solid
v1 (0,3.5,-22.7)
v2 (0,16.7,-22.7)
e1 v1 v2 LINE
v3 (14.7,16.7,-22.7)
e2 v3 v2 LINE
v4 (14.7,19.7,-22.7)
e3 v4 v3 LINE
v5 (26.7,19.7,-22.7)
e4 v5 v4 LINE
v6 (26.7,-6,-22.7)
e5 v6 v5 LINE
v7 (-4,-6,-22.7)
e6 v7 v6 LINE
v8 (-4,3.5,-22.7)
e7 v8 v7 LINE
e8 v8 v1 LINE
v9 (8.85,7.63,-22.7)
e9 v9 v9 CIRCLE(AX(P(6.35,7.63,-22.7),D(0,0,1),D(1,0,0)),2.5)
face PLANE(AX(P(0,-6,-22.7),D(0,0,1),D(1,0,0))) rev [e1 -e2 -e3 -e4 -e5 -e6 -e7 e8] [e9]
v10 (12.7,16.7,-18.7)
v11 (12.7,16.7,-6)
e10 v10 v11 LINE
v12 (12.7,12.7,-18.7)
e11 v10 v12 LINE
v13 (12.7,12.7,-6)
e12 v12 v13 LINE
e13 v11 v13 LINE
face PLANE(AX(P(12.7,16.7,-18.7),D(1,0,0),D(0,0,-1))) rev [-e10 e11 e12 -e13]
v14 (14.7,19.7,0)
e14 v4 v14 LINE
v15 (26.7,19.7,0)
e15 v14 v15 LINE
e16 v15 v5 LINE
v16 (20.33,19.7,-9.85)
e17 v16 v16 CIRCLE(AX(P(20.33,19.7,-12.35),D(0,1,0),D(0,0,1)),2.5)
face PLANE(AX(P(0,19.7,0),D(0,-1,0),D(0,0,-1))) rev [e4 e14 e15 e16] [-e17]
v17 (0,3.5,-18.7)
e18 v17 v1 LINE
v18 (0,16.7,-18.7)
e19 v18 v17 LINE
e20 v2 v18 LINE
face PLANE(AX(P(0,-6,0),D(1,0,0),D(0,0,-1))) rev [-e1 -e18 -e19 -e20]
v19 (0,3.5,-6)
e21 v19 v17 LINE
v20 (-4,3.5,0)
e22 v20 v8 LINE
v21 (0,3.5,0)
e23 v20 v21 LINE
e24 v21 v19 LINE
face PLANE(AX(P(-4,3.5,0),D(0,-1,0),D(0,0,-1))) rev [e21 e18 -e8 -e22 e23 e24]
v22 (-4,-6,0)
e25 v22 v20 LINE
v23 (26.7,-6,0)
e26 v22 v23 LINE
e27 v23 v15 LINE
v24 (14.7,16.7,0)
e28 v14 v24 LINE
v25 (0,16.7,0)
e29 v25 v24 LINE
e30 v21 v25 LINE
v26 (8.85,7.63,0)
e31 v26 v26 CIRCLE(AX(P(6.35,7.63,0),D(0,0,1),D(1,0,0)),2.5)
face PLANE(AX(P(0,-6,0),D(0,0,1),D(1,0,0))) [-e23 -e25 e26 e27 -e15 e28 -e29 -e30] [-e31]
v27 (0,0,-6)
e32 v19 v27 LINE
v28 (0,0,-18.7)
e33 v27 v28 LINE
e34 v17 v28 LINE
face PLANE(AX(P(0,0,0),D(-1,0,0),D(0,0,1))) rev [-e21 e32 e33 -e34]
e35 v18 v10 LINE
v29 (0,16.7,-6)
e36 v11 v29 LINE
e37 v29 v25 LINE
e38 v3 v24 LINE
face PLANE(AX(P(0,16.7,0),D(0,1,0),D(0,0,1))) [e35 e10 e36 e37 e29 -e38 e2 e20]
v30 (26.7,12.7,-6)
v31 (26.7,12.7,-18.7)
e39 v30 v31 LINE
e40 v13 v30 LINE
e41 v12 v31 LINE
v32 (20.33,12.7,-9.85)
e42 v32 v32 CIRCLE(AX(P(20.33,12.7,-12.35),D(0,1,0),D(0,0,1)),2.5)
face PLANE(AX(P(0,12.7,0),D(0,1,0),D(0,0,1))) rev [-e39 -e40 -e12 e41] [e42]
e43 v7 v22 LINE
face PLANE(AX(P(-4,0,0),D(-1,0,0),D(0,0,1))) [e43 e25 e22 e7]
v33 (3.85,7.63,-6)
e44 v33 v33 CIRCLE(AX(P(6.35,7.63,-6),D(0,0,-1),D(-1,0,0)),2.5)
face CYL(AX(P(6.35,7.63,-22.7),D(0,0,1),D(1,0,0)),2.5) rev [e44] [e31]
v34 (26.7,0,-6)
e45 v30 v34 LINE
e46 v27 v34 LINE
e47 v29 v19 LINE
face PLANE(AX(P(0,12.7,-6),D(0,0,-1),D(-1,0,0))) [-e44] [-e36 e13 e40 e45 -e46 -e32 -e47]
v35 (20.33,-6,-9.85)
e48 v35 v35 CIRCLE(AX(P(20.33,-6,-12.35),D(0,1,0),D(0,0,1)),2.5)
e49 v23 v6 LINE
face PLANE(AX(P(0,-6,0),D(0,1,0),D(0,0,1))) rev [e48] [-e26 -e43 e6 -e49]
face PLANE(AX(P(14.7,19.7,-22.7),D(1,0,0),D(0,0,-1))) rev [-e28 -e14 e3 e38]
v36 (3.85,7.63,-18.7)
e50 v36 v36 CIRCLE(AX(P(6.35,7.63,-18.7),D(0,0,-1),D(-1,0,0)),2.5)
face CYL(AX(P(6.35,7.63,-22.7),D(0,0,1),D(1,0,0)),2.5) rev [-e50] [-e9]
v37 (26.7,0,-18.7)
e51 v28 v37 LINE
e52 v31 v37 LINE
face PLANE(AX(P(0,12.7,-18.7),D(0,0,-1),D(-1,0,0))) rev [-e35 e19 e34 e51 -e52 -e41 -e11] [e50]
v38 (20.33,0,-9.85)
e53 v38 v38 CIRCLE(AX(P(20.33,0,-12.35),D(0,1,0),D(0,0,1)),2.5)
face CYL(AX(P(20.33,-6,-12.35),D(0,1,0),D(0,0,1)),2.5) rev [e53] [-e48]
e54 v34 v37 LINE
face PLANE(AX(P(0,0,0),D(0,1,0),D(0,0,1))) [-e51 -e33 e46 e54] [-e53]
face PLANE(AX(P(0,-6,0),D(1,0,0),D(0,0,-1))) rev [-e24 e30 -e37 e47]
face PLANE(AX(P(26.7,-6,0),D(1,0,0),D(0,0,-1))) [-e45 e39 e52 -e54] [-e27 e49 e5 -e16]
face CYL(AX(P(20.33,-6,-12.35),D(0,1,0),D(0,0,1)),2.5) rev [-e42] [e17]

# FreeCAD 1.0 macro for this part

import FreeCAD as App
import Part
import Sketcher

V = App.Vector

doc = App.newDocument("Part")
params = doc.addObject("Spreadsheet::Sheet", "Params")
for row, (alias, value) in enumerate([
    ("sketch1_width", "26.7 mm"),
    ("sketch1_height", "22.7 mm"),
    ("pad1_length", "6 mm"),
    ("sketch2_height", "6 mm"),
    ("sketch2_height2", "4 mm"),
    ("sketch2_width", "26.7 mm"),
    ("pad2_length", "12.7 mm"),
    ("sketch3_diameter", "5 mm"),
    ("sketch4_height", "4 mm"),
    ("sketch4_height2", "6 mm"),
    ("sketch4_width", "12.7 mm"),
    ("sketch4_width2", "26.7 mm"),
    ("pad3_length", "4 mm"),
    ("sketch5_diameter", "5 mm"),
    ("sketch6_width", "9.5 mm"),
    ("sketch6_height", "22.7 mm"),
    ("pad4_length", "4 mm"),
    ("sketch7_diameter", "5 mm"),
    ("sketch7_width", "12 mm"),
    ("sketch7_height", "22.7 mm"),
    ("pad5_length", "3 mm"),
], start=1):
    params.set(f"A{row}", alias)
    params.set(f"B{row}", "=" + value)
    params.setAlias(f"B{row}", alias)

body = doc.addObject("PartDesign::Body", "Body")

# Sketch on XZ plane
sketch1 = body.newObject("Sketcher::SketchObject", "Sketch")
sketch1.AttachmentSupport = (doc.getObject("XZ_Plane"), [""])
sketch1.MapMode = "FlatFace"
sketch1.addGeometry([
    Part.LineSegment(V(0, -22.7, 0), V(0, 0, 0)),
    Part.LineSegment(V(0, 0, 0), V(26.7, 0, 0)),
    Part.LineSegment(V(26.7, 0, 0), V(26.7, -22.7, 0)),
    Part.LineSegment(V(26.7, -22.7, 0), V(0, -22.7, 0)),
], False)
sketch1.addConstraint([
    Sketcher.Constraint("Coincident", 0, 2, 1, 1),
    Sketcher.Constraint("Coincident", 1, 2, 2, 1),
    Sketcher.Constraint("Coincident", 2, 2, 3, 1),
    Sketcher.Constraint("Coincident", 3, 2, 0, 1),
    Sketcher.Constraint("Vertical", 0),
    Sketcher.Constraint("Horizontal", 1),
    Sketcher.Constraint("Vertical", 2),
    Sketcher.Constraint("Horizontal", 3),
    Sketcher.Constraint("Coincident", 0, 2, -1, 1),
    Sketcher.Constraint("DistanceX", 1, 1, 1, 2, 26.7),
    Sketcher.Constraint("DistanceY", 0, 1, 0, 2, 22.7),
])
sketch1.setExpression("Constraints[9]", "Params.sketch1_width")
sketch1.setExpression("Constraints[10]", "Params.sketch1_height")
pad1 = body.newObject("PartDesign::Pad", "Pad")
pad1.Profile = sketch1
pad1.setExpression("Length", "Params.pad1_length")

# Sketch on XZ plane
sketch2 = body.newObject("Sketcher::SketchObject", "Sketch001")
sketch2.AttachmentSupport = (doc.getObject("XZ_Plane"), [""])
sketch2.MapMode = "FlatFace"
sketch2.addGeometry([
    Part.LineSegment(V(0, -6, 0), V(0, 0, 0)),  # 0
    Part.LineSegment(V(0, 0, 0), V(26.7, 0, 0)),  # 1
    Part.LineSegment(V(26.7, 0, 0), V(26.7, -6, 0)),  # 2
    Part.LineSegment(V(26.7, -6, 0), V(0, -6, 0)),  # 3
    Part.LineSegment(V(0, -22.7, 0), V(0, -18.7, 0)),  # 4
    Part.LineSegment(V(0, -18.7, 0), V(26.7, -18.7, 0)),  # 5
    Part.LineSegment(V(26.7, -18.7, 0), V(26.7, -22.7, 0)),  # 6
    Part.LineSegment(V(26.7, -22.7, 0), V(0, -22.7, 0)),  # 7
], False)
sketch2.addConstraint([
    Sketcher.Constraint("Coincident", 0, 2, 1, 1),
    Sketcher.Constraint("Coincident", 1, 2, 2, 1),
    Sketcher.Constraint("Coincident", 2, 2, 3, 1),
    Sketcher.Constraint("Coincident", 3, 2, 0, 1),
    Sketcher.Constraint("Coincident", 4, 2, 5, 1),
    Sketcher.Constraint("Coincident", 5, 2, 6, 1),
    Sketcher.Constraint("Coincident", 6, 2, 7, 1),
    Sketcher.Constraint("Coincident", 7, 2, 4, 1),
    Sketcher.Constraint("Vertical", 0),
    Sketcher.Constraint("Horizontal", 1),
    Sketcher.Constraint("Vertical", 2),
    Sketcher.Constraint("Horizontal", 3),
    Sketcher.Constraint("Vertical", 4),
    Sketcher.Constraint("Horizontal", 5),
    Sketcher.Constraint("Vertical", 6),
    Sketcher.Constraint("Horizontal", 7),
    Sketcher.Constraint("Coincident", 0, 2, -1, 1),
    Sketcher.Constraint("PointOnObject", 4, 2, -2),
    Sketcher.Constraint("Vertical", 2, 2, 5, 2),
    Sketcher.Constraint("DistanceY", 0, 1, 0, 2, 6.0),
    Sketcher.Constraint("DistanceY", 4, 1, 4, 2, 4.0),
    Sketcher.Constraint("DistanceX", 1, 1, 1, 2, 26.7),
    Sketcher.Constraint("DistanceY", 4, 2, -1, 1, 18.7),
])
sketch2.setExpression("Constraints[19]", "Params.sketch2_height")
sketch2.setExpression("Constraints[20]", "Params.sketch2_height2")
sketch2.setExpression("Constraints[21]", "Params.sketch2_width")
pad2 = body.newObject("PartDesign::Pad", "Pad001")
pad2.Profile = sketch2
pad2.setExpression("Length", "Params.pad2_length")
pad2.Reversed = True

# Sketch on XY plane
sketch3 = body.newObject("Sketcher::SketchObject", "Sketch002")
sketch3.AttachmentSupport = (doc.getObject("XY_Plane"), [""])
sketch3.MapMode = "FlatFace"
sketch3.addGeometry(Part.Circle(V(6.35, 7.63, 0), V(0, 0, 1), 2.5), False)
sketch3.addConstraint([
    Sketcher.Constraint("Diameter", 0, 5.0),
    Sketcher.Constraint("DistanceX", -1, 1, 0, 3, 6.35),
    Sketcher.Constraint("DistanceY", -1, 1, 0, 3, 7.63),
])
sketch3.setExpression("Constraints[0]", "Params.sketch3_diameter")
pocket1 = body.newObject("PartDesign::Pocket", "Pocket")
pocket1.Profile = sketch3
pocket1.Type = "ThroughAll"

# Sketch on XZ plane
sketch4 = body.newObject("Sketcher::SketchObject", "Sketch003")
sketch4.AttachmentSupport = (doc.getObject("XZ_Plane"), [""])
sketch4.MapMode = "FlatFace"
sketch4.AttachmentOffset = App.Placement(V(0, 0, -12.7), App.Rotation())
sketch4.addGeometry([
    Part.LineSegment(V(0, -22.7, 0), V(0, -18.7, 0)),  # 0
    Part.LineSegment(V(0, -18.7, 0), V(12.7, -18.7, 0)),  # 1
    Part.LineSegment(V(12.7, -18.7, 0), V(12.7, -6, 0)),  # 2
    Part.LineSegment(V(12.7, -6, 0), V(0, -6, 0)),  # 3
    Part.LineSegment(V(0, -6, 0), V(0, 0, 0)),  # 4
    Part.LineSegment(V(0, 0, 0), V(26.7, 0, 0)),  # 5
    Part.LineSegment(V(26.7, 0, 0), V(26.7, -22.7, 0)),  # 6
    Part.LineSegment(V(26.7, -22.7, 0), V(0, -22.7, 0)),  # 7
], False)
sketch4.addConstraint([
    Sketcher.Constraint("Coincident", 0, 2, 1, 1),
    Sketcher.Constraint("Coincident", 1, 2, 2, 1),
    Sketcher.Constraint("Coincident", 2, 2, 3, 1),
    Sketcher.Constraint("Coincident", 3, 2, 4, 1),
    Sketcher.Constraint("Coincident", 4, 2, 5, 1),
    Sketcher.Constraint("Coincident", 5, 2, 6, 1),
    Sketcher.Constraint("Coincident", 6, 2, 7, 1),
    Sketcher.Constraint("Coincident", 7, 2, 0, 1),
    Sketcher.Constraint("Vertical", 0),
    Sketcher.Constraint("Horizontal", 1),
    Sketcher.Constraint("Vertical", 2),
    Sketcher.Constraint("Horizontal", 3),
    Sketcher.Constraint("Vertical", 4),
    Sketcher.Constraint("Horizontal", 5),
    Sketcher.Constraint("Vertical", 6),
    Sketcher.Constraint("Horizontal", 7),
    Sketcher.Constraint("Coincident", 4, 2, -1, 1),
    Sketcher.Constraint("PointOnObject", 0, 2, -2),
    Sketcher.Constraint("Equal", 3, 2),
    Sketcher.Constraint("DistanceY", 0, 1, 0, 2, 4.0),
    Sketcher.Constraint("DistanceY", 4, 1, 4, 2, 6.0),
    Sketcher.Constraint("DistanceX", 1, 1, 1, 2, 12.7),
    Sketcher.Constraint("DistanceX", 5, 1, 5, 2, 26.7),
])
sketch4.setExpression("Constraints[19]", "Params.sketch4_height")
sketch4.setExpression("Constraints[20]", "Params.sketch4_height2")
sketch4.setExpression("Constraints[21]", "Params.sketch4_width")
sketch4.setExpression("Constraints[22]", "Params.sketch4_width2")
pad3 = body.newObject("PartDesign::Pad", "Pad002")
pad3.Profile = sketch4
pad3.setExpression("Length", "Params.pad3_length")
pad3.Reversed = True

# Sketch on XZ plane
sketch5 = body.newObject("Sketcher::SketchObject", "Sketch004")
sketch5.AttachmentSupport = (doc.getObject("XZ_Plane"), [""])
sketch5.MapMode = "FlatFace"
sketch5.AttachmentOffset = App.Placement(V(0, 0, -16.7), App.Rotation())
sketch5.addGeometry(Part.Circle(V(20.33, -12.35, 0), V(0, 0, 1), 2.5), False)
sketch5.addConstraint([
    Sketcher.Constraint("Diameter", 0, 5.0),
    Sketcher.Constraint("DistanceX", -1, 1, 0, 3, 20.33),
    Sketcher.Constraint("DistanceY", 0, 3, -1, 1, 12.35),
])
sketch5.setExpression("Constraints[0]", "Params.sketch5_diameter")
pocket2 = body.newObject("PartDesign::Pocket", "Pocket001")
pocket2.Profile = sketch5
pocket2.Type = "ThroughAll"
pocket2.Reversed = True

# Sketch on YZ plane
sketch6 = body.newObject("Sketcher::SketchObject", "Sketch005")
sketch6.AttachmentSupport = (doc.getObject("YZ_Plane"), [""])
sketch6.MapMode = "FlatFace"
sketch6.addGeometry([
    Part.LineSegment(V(3.5, -22.7, 0), V(-6, -22.7, 0)),
    Part.LineSegment(V(-6, -22.7, 0), V(-6, 0, 0)),
    Part.LineSegment(V(-6, 0, 0), V(3.5, 0, 0)),
    Part.LineSegment(V(3.5, 0, 0), V(3.5, -22.7, 0)),
], False)
sketch6.addConstraint([
    Sketcher.Constraint("Coincident", 0, 2, 1, 1),
    Sketcher.Constraint("Coincident", 1, 2, 2, 1),
    Sketcher.Constraint("Coincident", 2, 2, 3, 1),
    Sketcher.Constraint("Coincident", 3, 2, 0, 1),
    Sketcher.Constraint("Horizontal", 0),
    Sketcher.Constraint("Vertical", 1),
    Sketcher.Constraint("Horizontal", 2),
    Sketcher.Constraint("Vertical", 3),
    Sketcher.Constraint("PointOnObject", 1, 2, -1),
    Sketcher.Constraint("DistanceX", 0, 2, 0, 1, 9.5),
    Sketcher.Constraint("DistanceY", 1, 1, 1, 2, 22.7),
    Sketcher.Constraint("DistanceX", 0, 2, -1, 1, 6.0),
])
sketch6.setExpression("Constraints[9]", "Params.sketch6_width")
sketch6.setExpression("Constraints[10]", "Params.sketch6_height")
pad4 = body.newObject("PartDesign::Pad", "Pad003")
pad4.Profile = sketch6
pad4.setExpression("Length", "Params.pad4_length")
pad4.Reversed = True

# Sketch on XZ plane
sketch7 = body.newObject("Sketcher::SketchObject", "Sketch006")
sketch7.AttachmentSupport = (doc.getObject("XZ_Plane"), [""])
sketch7.MapMode = "FlatFace"
sketch7.AttachmentOffset = App.Placement(V(0, 0, -19.7), App.Rotation())
sketch7.addGeometry([
    Part.LineSegment(V(14.7, -22.7, 0), V(14.7, 0, 0)),  # 0
    Part.LineSegment(V(14.7, 0, 0), V(26.7, 0, 0)),  # 1
    Part.LineSegment(V(26.7, 0, 0), V(26.7, -22.7, 0)),  # 2
    Part.LineSegment(V(26.7, -22.7, 0), V(14.7, -22.7, 0)),  # 3
    Part.Circle(V(20.33, -12.35, 0), V(0, 0, 1), 2.5),  # 4
], False)
sketch7.addConstraint([
    Sketcher.Constraint("Coincident", 0, 2, 1, 1),
    Sketcher.Constraint("Coincident", 1, 2, 2, 1),
    Sketcher.Constraint("Coincident", 2, 2, 3, 1),
    Sketcher.Constraint("Coincident", 3, 2, 0, 1),
    Sketcher.Constraint("Vertical", 0),
    Sketcher.Constraint("Horizontal", 1),
    Sketcher.Constraint("Vertical", 2),
    Sketcher.Constraint("Horizontal", 3),
    Sketcher.Constraint("PointOnObject", 0, 2, -1),
    Sketcher.Constraint("Diameter", 4, 5.0),
    Sketcher.Constraint("DistanceX", 1, 1, 1, 2, 12.0),
    Sketcher.Constraint("DistanceY", 0, 1, 0, 2, 22.7),
    Sketcher.Constraint("DistanceX", -1, 1, 0, 2, 14.7),
    Sketcher.Constraint("DistanceX", -1, 1, 4, 3, 20.33),
    Sketcher.Constraint("DistanceY", 4, 3, -1, 1, 12.35),
])
sketch7.setExpression("Constraints[9]", "Params.sketch7_diameter")
sketch7.setExpression("Constraints[10]", "Params.sketch7_width")
sketch7.setExpression("Constraints[11]", "Params.sketch7_height")
pad5 = body.newObject("PartDesign::Pad", "Pad004")
pad5.Profile = sketch7
pad5.setExpression("Length", "Params.pad5_length")

doc.recompute()
